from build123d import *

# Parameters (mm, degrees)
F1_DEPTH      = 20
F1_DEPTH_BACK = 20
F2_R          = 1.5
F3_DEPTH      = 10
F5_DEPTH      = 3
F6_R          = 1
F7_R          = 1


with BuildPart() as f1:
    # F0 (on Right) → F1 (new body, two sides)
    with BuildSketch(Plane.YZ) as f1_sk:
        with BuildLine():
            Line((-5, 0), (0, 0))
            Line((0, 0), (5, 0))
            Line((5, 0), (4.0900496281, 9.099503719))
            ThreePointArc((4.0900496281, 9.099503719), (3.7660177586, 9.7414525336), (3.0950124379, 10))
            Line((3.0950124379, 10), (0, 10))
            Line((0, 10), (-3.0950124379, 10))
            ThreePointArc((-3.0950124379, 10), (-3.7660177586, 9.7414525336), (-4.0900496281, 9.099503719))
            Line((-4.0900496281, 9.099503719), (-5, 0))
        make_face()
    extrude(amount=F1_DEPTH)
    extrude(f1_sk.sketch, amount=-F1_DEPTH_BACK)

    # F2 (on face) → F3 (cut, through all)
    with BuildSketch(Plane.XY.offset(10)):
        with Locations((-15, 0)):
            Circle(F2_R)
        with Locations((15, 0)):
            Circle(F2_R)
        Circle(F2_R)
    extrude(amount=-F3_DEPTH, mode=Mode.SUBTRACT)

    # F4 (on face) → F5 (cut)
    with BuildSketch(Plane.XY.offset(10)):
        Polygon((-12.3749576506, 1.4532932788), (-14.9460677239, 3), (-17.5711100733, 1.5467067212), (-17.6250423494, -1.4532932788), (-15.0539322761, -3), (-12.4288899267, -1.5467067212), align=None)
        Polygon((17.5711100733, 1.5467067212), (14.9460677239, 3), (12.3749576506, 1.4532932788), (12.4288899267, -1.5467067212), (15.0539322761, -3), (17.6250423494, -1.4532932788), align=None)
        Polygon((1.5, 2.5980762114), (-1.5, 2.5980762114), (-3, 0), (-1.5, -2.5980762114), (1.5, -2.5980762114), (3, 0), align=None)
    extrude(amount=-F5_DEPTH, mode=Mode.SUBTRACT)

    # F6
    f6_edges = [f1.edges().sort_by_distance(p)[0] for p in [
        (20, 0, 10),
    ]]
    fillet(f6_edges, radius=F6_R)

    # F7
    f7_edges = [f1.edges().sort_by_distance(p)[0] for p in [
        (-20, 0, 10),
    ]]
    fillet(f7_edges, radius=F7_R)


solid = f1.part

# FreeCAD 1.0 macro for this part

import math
import FreeCAD as App
import Part
import Sketcher

V = App.Vector
Q = App.Units.Quantity


def edges_at(feature, points):
    """Names of the edges that pass closest to the given points."""
    edges = feature.Shape.Edges
    near = lambda p: min(range(len(edges)), key=lambda i: edges[i].distToShape(Part.Vertex(*p))[0])
    return sorted({f"Edge{near(p) + 1}" for p in points})


def add_polygon(sketch, points):
    """Adds a closed chain of lines whose ends are joined by coincident constraints."""
    first, n = sketch.GeometryCount, len(points)
    for a, b in zip(points, points[1:] + points[:1]):
        sketch.addGeometry(Part.LineSegment(App.Vector(*a, 0), App.Vector(*b, 0)), False)
    for i in range(n):
        sketch.addConstraint(Sketcher.Constraint("Coincident", first + i, 2, first + (i + 1) % n, 1))

doc = App.newDocument("Part")
body = doc.addObject("PartDesign::Body", "Body")

sketch1 = doc.addObject("Sketcher::SketchObject", "Sketch")
body.addObject(sketch1)
sketch1.AttachmentSupport = (doc.YZ_Plane, [""])
sketch1.MapMode = "FlatFace"
sketch1.addGeometry([
    Part.LineSegment(V(-5, 0, 0), V(5, 0, 0)),
    Part.LineSegment(V(5, 0, 0), V(4.1, 9.1, 0)),
    Part.ArcOfCircle(Part.Circle(V(3.1, 9, 0), V(0, 0, 1), 1), math.radians(6), math.radians(90)),
    Part.LineSegment(V(3.1, 10, 0), V(-3.1, 10, 0)),
    Part.ArcOfCircle(Part.Circle(V(-3.1, 9, 0), V(0, 0, 1), 1), math.radians(90), math.radians(174)),
    Part.LineSegment(V(-4.1, 9.1, 0), V(-5, 0, 0)),
], False)
sketch1.addConstraint([
    Sketcher.Constraint("Coincident", 0, 2, 1, 1),
    Sketcher.Constraint("Tangent", 1, 2, 2, 1),
    Sketcher.Constraint("Tangent", 2, 2, 3, 1),
    Sketcher.Constraint("Tangent", 3, 2, 4, 1),
    Sketcher.Constraint("Tangent", 4, 2, 5, 1),
    Sketcher.Constraint("Coincident", 5, 2, 0, 1),
    Sketcher.Constraint("Horizontal", 0),
    Sketcher.Constraint("Horizontal", 3),
    Sketcher.Constraint("Equal", 2, 4),
    Sketcher.Constraint("Symmetric", 0, 2, 5, 2, -1, 1),
    Sketcher.Constraint("Horizontal", 1, 2, 4, 2),
    Sketcher.Constraint("Radius", 2, 1.0),
    Sketcher.Constraint("DistanceX", 0, 1, 0, 2, 10.0),
    Sketcher.Constraint("DistanceY", -1, 1, 2, 3, 9.0),
    Sketcher.Constraint("DistanceX", 4, 2, 1, 2, 8.180099),
])
pad1 = doc.addObject("PartDesign::Pad", "Pad")
body.addObject(pad1)
pad1.Profile = sketch1
pad1.Type = "TwoLengths"
pad1.Length = 20
pad1.Length2 = 20

sketch2 = doc.addObject("Sketcher::SketchObject", "Sketch001")
body.addObject(sketch2)
sketch2.AttachmentSupport = (doc.XY_Plane, [""])
sketch2.MapMode = "FlatFace"
sketch2.AttachmentOffset = App.Placement(V(0, 0, 10), App.Rotation())
sketch2.addGeometry([
    Part.Circle(V(-15, 0, 0), V(0, 0, 1), 1.5),
    Part.Circle(V(15, 0, 0), V(0, 0, 1), 1.5),
    Part.Circle(V(0, 0, 0), V(0, 0, 1), 1.5),
], False)
sketch2.addConstraint([
    Sketcher.Constraint("Coincident", 2, 3, -1, 1),
    Sketcher.Constraint("Equal", 0, 1),
    Sketcher.Constraint("Equal", 1, 2),
    Sketcher.Constraint("Symmetric", 0, 3, 1, 3, -1, 1),
    Sketcher.Constraint("PointOnObject", 0, 3, -1),
    Sketcher.Constraint("Diameter", 0, 3.0),
    Sketcher.Constraint("DistanceX", 0, 3, -1, 1, 15.0),
])
pocket1 = doc.addObject("PartDesign::Pocket", "Pocket")
body.addObject(pocket1)
pocket1.Profile = sketch2
pocket1.Type = "ThroughAll"

sketch3 = doc.addObject("Sketcher::SketchObject", "Sketch002")
body.addObject(sketch3)
sketch3.AttachmentSupport = (doc.XY_Plane, [""])
sketch3.MapMode = "FlatFace"
sketch3.AttachmentOffset = App.Placement(V(0, 0, 10), App.Rotation())
add_polygon(sketch3, [(-12.4, 1.5), (-14.9, 3), (-17.6, 1.5), (-17.6, -1.5), (-15.1, -3), (-12.4, -1.5)])
add_polygon(sketch3, [(17.6, 1.5), (14.9, 3), (12.4, 1.5), (12.4, -1.5), (15.1, -3), (17.6, -1.5)])
add_polygon(sketch3, [(1.5, 2.6), (-1.5, 2.6), (-3, 0), (-1.5, -2.6), (1.5, -2.6), (3, 0)])
sketch3.addConstraint([
    Sketcher.Constraint("Horizontal", 12),
    Sketcher.Constraint("Horizontal", 15),
    Sketcher.Constraint("Symmetric", 12, 2, 15, 2, -1, 1),
    Sketcher.Constraint("Symmetric", 13, 2, 16, 2, -1, 1),
    Sketcher.Constraint("Symmetric", 0, 2, 6, 2, -2),
    Sketcher.Constraint("Symmetric", 5, 2, 7, 2, -2),
    Sketcher.Constraint("Symmetric", 4, 2, 8, 2, -2),
    Sketcher.Constraint("Symmetric", 3, 2, 9, 2, -2),
    Sketcher.Constraint("Symmetric", 2, 2, 10, 2, -2),
    Sketcher.Constraint("Symmetric", 1, 2, 11, 2, -2),
    Sketcher.Constraint("PointOnObject", 13, 2, -1),
    Sketcher.Constraint("Parallel", 0, 3),
    Sketcher.Constraint("Parallel", 1, 4),
    Sketcher.Constraint("Parallel", 2, 5),
    Sketcher.Constraint("Parallel", 14, 17),
    Sketcher.Constraint("Vertical", 12, 2, 14, 2),
    Sketcher.Constraint("Equal", 0, 1),
    Sketcher.Constraint("Equal", 1, 2),
    Sketcher.Constraint("Equal", 2, 3),
    Sketcher.Constraint("DistanceX", 12, 2, 12, 1, 3.0),
    Sketcher.Constraint("Angle", 13, Q("-120 deg")),
    Sketcher.Constraint("Distance", 13, 3.0),
    Sketcher.Constraint("DistanceY", -1, 1, 0, 2, 3.0),
    Sketcher.Constraint("DistanceY", 3, 2, -1, 1, 3.0),
    Sketcher.Constraint("DistanceY", 2, 2, 1, 2, 3.0),
    Sketcher.Constraint("DistanceX", 3, 2, 6, 2, 30.0),
    Sketcher.Constraint("DistanceX", 1, 2, -1, 1, 17.57111),
    Sketcher.Constraint("DistanceX", 2, 2, 3, 2, 2.57111),
])
pocket2 = doc.addObject("PartDesign::Pocket", "Pocket001")
body.addObject(pocket2)
pocket2.Profile = sketch3
pocket2.Length = 3
doc.recompute()

fillet = doc.addObject("PartDesign::Fillet", "Fillet")
body.addObject(fillet)
fillet.Base = (pocket2, edges_at(pocket2, [(20, 0, 10)]))
fillet.Radius = 1
doc.recompute()

fillet2 = doc.addObject("PartDesign::Fillet", "Fillet001")
body.addObject(fillet2)
fillet2.Base = (fillet, edges_at(fillet, [(-20, 0, 10)]))
fillet2.Radius = 1

doc.recompute()
